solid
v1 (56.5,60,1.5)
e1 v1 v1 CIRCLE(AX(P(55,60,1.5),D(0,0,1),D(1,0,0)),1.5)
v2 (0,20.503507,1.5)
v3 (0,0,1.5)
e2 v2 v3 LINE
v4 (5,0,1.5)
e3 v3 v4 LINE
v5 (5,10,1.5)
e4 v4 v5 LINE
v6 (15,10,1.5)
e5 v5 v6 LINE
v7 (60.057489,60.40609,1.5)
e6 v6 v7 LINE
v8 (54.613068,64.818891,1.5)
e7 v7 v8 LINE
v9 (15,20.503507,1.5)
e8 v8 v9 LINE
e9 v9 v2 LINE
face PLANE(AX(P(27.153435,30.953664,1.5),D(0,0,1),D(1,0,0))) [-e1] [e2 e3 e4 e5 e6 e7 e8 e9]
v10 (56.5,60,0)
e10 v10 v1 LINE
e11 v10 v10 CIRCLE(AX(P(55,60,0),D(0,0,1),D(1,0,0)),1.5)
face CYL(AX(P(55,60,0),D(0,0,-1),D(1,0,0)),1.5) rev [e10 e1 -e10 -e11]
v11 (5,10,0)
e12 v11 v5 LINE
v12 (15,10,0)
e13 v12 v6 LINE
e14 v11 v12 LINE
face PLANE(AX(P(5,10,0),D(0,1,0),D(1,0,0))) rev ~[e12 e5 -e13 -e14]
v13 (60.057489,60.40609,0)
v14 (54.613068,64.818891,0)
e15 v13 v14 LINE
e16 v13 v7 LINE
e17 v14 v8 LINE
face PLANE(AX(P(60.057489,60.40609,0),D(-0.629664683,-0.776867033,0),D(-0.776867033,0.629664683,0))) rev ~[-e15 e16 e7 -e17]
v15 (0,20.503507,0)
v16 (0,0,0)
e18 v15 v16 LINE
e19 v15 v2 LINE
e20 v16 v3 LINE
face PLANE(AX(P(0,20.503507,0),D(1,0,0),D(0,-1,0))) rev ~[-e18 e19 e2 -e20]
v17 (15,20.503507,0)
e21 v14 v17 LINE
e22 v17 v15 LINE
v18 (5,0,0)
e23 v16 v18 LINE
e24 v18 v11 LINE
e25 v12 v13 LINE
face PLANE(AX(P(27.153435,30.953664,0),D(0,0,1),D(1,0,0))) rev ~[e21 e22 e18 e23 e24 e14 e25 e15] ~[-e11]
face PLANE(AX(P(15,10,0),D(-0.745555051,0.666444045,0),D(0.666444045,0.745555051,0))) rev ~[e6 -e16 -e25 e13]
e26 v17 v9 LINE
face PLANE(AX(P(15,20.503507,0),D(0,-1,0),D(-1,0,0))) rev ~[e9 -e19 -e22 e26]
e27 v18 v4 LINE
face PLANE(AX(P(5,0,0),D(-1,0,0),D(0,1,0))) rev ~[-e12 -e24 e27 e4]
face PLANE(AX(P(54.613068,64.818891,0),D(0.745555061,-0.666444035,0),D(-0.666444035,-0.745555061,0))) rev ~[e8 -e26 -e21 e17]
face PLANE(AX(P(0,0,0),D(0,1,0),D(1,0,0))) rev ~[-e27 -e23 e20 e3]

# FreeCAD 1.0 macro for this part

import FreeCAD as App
import Part
import Sketcher
from FreeCAD import Vector


def add_polygon(sketch, points):
    """Adds a closed chain of lines whose ends are joined by coincident constraints."""
    first, n = sketch.GeometryCount, len(points)
    for a, b in zip(points, points[1:] + points[:1]):
        sketch.addGeometry(Part.LineSegment(App.Vector(*a, 0), App.Vector(*b, 0)), False)
    for i in range(n):
        sketch.addConstraint(Sketcher.Constraint("Coincident", first + i, 2, first + (i + 1) % n, 1))

doc = App.newDocument("Part")
params = doc.addObject("Spreadsheet::Sheet", "Params")
for row, (alias, value) in enumerate([
    ("sketch1_diameter", "3 mm"),
    ("sketch1_width", "5 mm"),
    ("sketch1_width2", "10 mm"),
    ("pad1_length", "1.5 mm"),
], start=1):
    params.set(f"A{row}", alias)
    params.set(f"B{row}", "=" + value)
    params.setAlias(f"B{row}", alias)

body = doc.addObject("PartDesign::Body", "Body")

# Sketch on XY plane
sketch1 = body.newObject("Sketcher::SketchObject", "Sketch")
sketch1.AttachmentSupport = (doc.getObject("XY_Plane"), [""])
sketch1.MapMode = "FlatFace"
add_polygon(sketch1, [(0, 20.503507), (0, 0), (5, 0), (5, 10), (15, 10), (60.057489, 60.40609), (54.613068, 64.818891), (15, 20.503507)])  # lines 0-7
sketch1.addGeometry(Part.Circle(Vector(55, 60, 0), Vector(0, 0, 1), 1.5), False)  # 8
sketch1.addConstraint([
    Sketcher.Constraint("Vertical", 0),
    Sketcher.Constraint("Horizontal", 1),
    Sketcher.Constraint("Vertical", 2),
    Sketcher.Constraint("Horizontal", 3),
    Sketcher.Constraint("Horizontal", 7),
    Sketcher.Constraint("Coincident", 0, 2, -1, 1),
    Sketcher.Constraint("Parallel", 4, 6),
    Sketcher.Constraint("Vertical", 3, 2, 6, 2),
    Sketcher.Constraint("Equal", 3, 2),
    Sketcher.Constraint("Diameter", 8, 3.0),
    Sketcher.Constraint("DistanceX", 1, 1, 1, 2, 5.0),
    Sketcher.Constraint("DistanceX", 3, 1, 3, 2, 10.0),
    Sketcher.Constraint("DistanceX", -1, 1, 8, 3, 55.0),
    Sketcher.Constraint("DistanceY", -1, 1, 8, 3, 60.0),
    Sketcher.Constraint("DistanceY", 4, 2, 5, 2, 4.412801),
    Sketcher.Constraint("Distance", 4, 67.60881),
    Sketcher.Constraint("Distance", 6, 59.439452),
    Sketcher.Constraint("DistanceY", 0, 2, 0, 1, 20.503507),
])
sketch1.setExpression("Constraints[17]", "Params.sketch1_diameter")
sketch1.setExpression("Constraints[18]", "Params.sketch1_width")
sketch1.setExpression("Constraints[19]", "Params.sketch1_width2")
pad1 = body.newObject("PartDesign::Pad", "Pad")
pad1.Profile = sketch1
pad1.setExpression("Length", "Params.pad1_length")

doc.recompute()
